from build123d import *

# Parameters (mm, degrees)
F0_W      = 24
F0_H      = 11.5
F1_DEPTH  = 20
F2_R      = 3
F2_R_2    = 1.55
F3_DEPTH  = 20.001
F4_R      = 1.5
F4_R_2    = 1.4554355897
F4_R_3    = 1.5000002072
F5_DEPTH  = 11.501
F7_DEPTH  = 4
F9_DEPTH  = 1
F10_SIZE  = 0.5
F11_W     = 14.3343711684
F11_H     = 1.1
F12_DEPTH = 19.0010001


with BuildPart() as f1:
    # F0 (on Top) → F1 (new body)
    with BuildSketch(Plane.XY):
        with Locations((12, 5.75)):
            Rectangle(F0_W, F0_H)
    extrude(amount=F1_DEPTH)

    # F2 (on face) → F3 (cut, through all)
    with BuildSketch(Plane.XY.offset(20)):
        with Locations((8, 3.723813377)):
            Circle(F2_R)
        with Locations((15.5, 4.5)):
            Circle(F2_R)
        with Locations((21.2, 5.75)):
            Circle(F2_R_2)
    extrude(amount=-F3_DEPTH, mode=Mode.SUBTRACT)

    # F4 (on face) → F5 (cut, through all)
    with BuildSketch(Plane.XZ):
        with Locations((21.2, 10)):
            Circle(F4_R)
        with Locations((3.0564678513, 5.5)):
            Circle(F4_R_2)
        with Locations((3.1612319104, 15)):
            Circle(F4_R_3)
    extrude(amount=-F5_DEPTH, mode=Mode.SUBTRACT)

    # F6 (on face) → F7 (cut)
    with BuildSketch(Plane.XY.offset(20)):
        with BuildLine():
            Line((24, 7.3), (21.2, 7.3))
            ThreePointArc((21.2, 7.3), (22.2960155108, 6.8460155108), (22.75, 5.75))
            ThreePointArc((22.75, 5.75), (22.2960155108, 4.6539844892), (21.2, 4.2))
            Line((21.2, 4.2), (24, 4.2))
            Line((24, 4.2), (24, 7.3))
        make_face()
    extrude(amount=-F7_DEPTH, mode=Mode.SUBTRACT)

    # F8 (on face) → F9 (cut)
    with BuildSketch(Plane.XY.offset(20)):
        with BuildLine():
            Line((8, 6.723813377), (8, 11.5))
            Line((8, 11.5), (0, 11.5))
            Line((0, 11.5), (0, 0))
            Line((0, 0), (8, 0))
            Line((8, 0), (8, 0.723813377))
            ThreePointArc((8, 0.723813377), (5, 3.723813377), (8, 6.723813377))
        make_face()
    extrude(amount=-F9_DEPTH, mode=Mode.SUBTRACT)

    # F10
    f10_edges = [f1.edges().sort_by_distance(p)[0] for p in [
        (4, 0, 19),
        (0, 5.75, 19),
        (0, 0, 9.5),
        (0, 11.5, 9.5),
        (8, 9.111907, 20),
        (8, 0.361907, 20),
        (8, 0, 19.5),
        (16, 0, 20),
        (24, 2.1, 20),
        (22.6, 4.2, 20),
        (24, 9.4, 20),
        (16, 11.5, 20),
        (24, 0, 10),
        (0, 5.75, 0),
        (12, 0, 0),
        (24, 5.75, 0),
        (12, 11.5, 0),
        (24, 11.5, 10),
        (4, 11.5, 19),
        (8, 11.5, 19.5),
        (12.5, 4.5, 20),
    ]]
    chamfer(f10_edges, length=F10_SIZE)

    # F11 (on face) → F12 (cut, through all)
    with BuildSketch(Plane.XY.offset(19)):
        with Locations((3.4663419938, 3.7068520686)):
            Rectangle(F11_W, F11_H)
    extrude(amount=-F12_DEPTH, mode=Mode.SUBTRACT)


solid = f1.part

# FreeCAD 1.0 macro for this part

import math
import FreeCAD as App
import Part
import Sketcher

V = App.Vector
Q = App.Units.Quantity


def edges_at(feature, points):
    """Names of the edges that pass closest to the given points."""
    edges = feature.Shape.Edges
    near = lambda p: min(range(len(edges)), key=lambda i: edges[i].distToShape(Part.Vertex(*p))[0])
    return sorted({f"Edge{near(p) + 1}" for p in points})

doc = App.newDocument("Part")
body = doc.addObject("PartDesign::Body", "Body")

# Sketch on XY plane
sketch1 = doc.addObject("Sketcher::SketchObject", "Sketch")
body.addObject(sketch1)
sketch1.AttachmentSupport = (doc.XY_Plane, [""])
sketch1.MapMode = "FlatFace"
sketch1.addGeometry([
    Part.LineSegment(V(0, 12, 0), V(0, 0, 0)),
    Part.LineSegment(V(0, 0, 0), V(24, 0, 0)),
    Part.LineSegment(V(24, 0, 0), V(24, 12, 0)),
    Part.LineSegment(V(24, 12, 0), V(0, 12, 0)),
], False)
sketch1.addConstraint([
    Sketcher.Constraint("Coincident", 0, 2, 1, 1),
    Sketcher.Constraint("Coincident", 1, 2, 2, 1),
    Sketcher.Constraint("Coincident", 2, 2, 3, 1),
    Sketcher.Constraint("Coincident", 3, 2, 0, 1),
    Sketcher.Constraint("Vertical", 0),
    Sketcher.Constraint("Horizontal", 1),
    Sketcher.Constraint("Vertical", 2),
    Sketcher.Constraint("Horizontal", 3),
    Sketcher.Constraint("Coincident", 0, 2, -1, 1),
    Sketcher.Constraint("DistanceX", 1, 1, 1, 2, Q("24 mm")),
    Sketcher.Constraint("DistanceY", 0, 2, 0, 1, Q("11.5 mm")),
])
pad1 = doc.addObject("PartDesign::Pad", "Pad")
body.addObject(pad1)
pad1.Profile = sketch1
pad1.Length = 20

# Sketch on XY plane
sketch2 = doc.addObject("Sketcher::SketchObject", "Sketch001")
body.addObject(sketch2)
sketch2.AttachmentSupport = (doc.XY_Plane, [""])
sketch2.MapMode = "FlatFace"
sketch2.AttachmentOffset = App.Placement(V(0, 0, 20), App.Rotation())
sketch2.addGeometry([
    Part.Circle(V(8, 3.7, 0), V(0, 0, 1), 3),
    Part.Circle(V(15.5, 4.5, 0), V(0, 0, 1), 3),
    Part.Circle(V(21.2, 5.8, 0), V(0, 0, 1), 1.6),
], False)
sketch2.addConstraint([
    Sketcher.Constraint("Equal", 0, 1),
    Sketcher.Constraint("Diameter", 0, Q("6 mm")),
    Sketcher.Constraint("Diameter", 2, Q("3.1 mm")),
    Sketcher.Constraint("DistanceX", -1, 1, 0, 3, Q("8 mm")),
    Sketcher.Constraint("DistanceX", -1, 1, 1, 3, Q("15.5 mm")),
    Sketcher.Constraint("DistanceY", -1, 1, 1, 3, Q("4.5 mm")),
    Sketcher.Constraint("DistanceX", -1, 1, 2, 3, Q("21.2 mm")),
    Sketcher.Constraint("DistanceY", -1, 1, 2, 3, Q("5.75 mm")),
    Sketcher.Constraint("DistanceY", -1, 1, 0, 3, Q("3.723813 mm")),
])
pocket1 = doc.addObject("PartDesign::Pocket", "Pocket")
body.addObject(pocket1)
pocket1.Profile = sketch2
pocket1.Type = "ThroughAll"

# Sketch on XZ plane
sketch3 = doc.addObject("Sketcher::SketchObject", "Sketch002")
body.addObject(sketch3)
sketch3.AttachmentSupport = (doc.XZ_Plane, [""])
sketch3.MapMode = "FlatFace"
sketch3.addGeometry([
    Part.Circle(V(21.2, 10, 0), V(0, 0, 1), 1.5),
    Part.Circle(V(3.1, 5.5, 0), V(0, 0, 1), 1.5),
    Part.Circle(V(3.2, 15, 0), V(0, 0, 1), 1.5),
], False)
sketch3.addConstraint([
    Sketcher.Constraint("Equal", 0, 2),
    Sketcher.Constraint("Diameter", 0, Q("3 mm")),
    Sketcher.Constraint("DistanceY", -1, 1, 0, 3, Q("10 mm")),
    Sketcher.Constraint("DistanceY", -1, 1, 2, 3, Q("15 mm")),
    Sketcher.Constraint("DistanceX", -1, 1, 0, 3, Q("21.2 mm")),
    Sketcher.Constraint("DistanceY", -1, 1, 1, 3, Q("5.5 mm")),
    Sketcher.Constraint("Diameter", 1, Q("2.910871 mm")),
    Sketcher.Constraint("DistanceX", -1, 1, 2, 3, Q("3.161232 mm")),
    Sketcher.Constraint("DistanceX", -1, 1, 1, 3, Q("3.056468 mm")),
])
pocket2 = doc.addObject("PartDesign::Pocket", "Pocket001")
body.addObject(pocket2)
pocket2.Profile = sketch3
pocket2.Type = "ThroughAll"

# Sketch on XY plane
sketch4 = doc.addObject("Sketcher::SketchObject", "Sketch003")
body.addObject(sketch4)
sketch4.AttachmentSupport = (doc.XY_Plane, [""])
sketch4.MapMode = "FlatFace"
sketch4.AttachmentOffset = App.Placement(V(0, 0, 20), App.Rotation())
sketch4.addGeometry([
    Part.LineSegment(V(24, 7.3, 0), V(21.2, 7.3, 0)),  # 0
    Part.ArcOfCircle(Part.Circle(V(21.2, 5.8, 0), V(0, 0, 1), 1.6), math.radians(0), math.radians(90)),  # 1
    Part.ArcOfCircle(Part.Circle(V(21.2, 5.8, 0), V(0, 0, 1), 1.6), math.radians(-90), math.radians(0)),  # 2
    Part.LineSegment(V(21.2, 4.2, 0), V(24, 4.2, 0)),  # 3
    Part.LineSegment(V(24, 4.2, 0), V(24, 7.3, 0)),  # 4
], False)
sketch4.addConstraint([
    Sketcher.Constraint("Tangent", 0, 2, 1, 2),
    Sketcher.Constraint("Tangent", 1, 1, 2, 2),
    Sketcher.Constraint("Tangent", 2, 1, 3, 1),
    Sketcher.Constraint("Coincident", 3, 2, 4, 1),
    Sketcher.Constraint("Coincident", 4, 2, 0, 1),
    Sketcher.Constraint("Horizontal", 0),
    Sketcher.Constraint("Horizontal", 3),
    Sketcher.Constraint("Vertical", 4),
    Sketcher.Constraint("Equal", 1, 2),
    Sketcher.Constraint("Horizontal", 2, 3, 1, 1),
    Sketcher.Constraint("Radius", 1, Q("1.55 mm")),
    Sketcher.Constraint("DistanceX", 0, 2, 0, 1, Q("2.8 mm")),
    Sketcher.Constraint("DistanceX", -1, 1, 3, 2, Q("24 mm")),
    Sketcher.Constraint("DistanceY", -1, 1, 0, 2, Q("7.3 mm")),
])
pocket3 = doc.addObject("PartDesign::Pocket", "Pocket002")
body.addObject(pocket3)
pocket3.Profile = sketch4
pocket3.Length = 4

# Sketch on XY plane
sketch5 = doc.addObject("Sketcher::SketchObject", "Sketch004")
body.addObject(sketch5)
sketch5.AttachmentSupport = (doc.XY_Plane, [""])
sketch5.MapMode = "FlatFace"
sketch5.AttachmentOffset = App.Placement(V(0, 0, 20), App.Rotation())
sketch5.addGeometry([
    Part.LineSegment(V(8, 6.7, 0), V(8, 11.5, 0)),  # 0
    Part.LineSegment(V(8, 11.5, 0), V(0, 11.5, 0)),  # 1
    Part.LineSegment(V(0, 11.5, 0), V(0, 0, 0)),  # 2
    Part.LineSegment(V(0, 0, 0), V(8, 0, 0)),  # 3
    Part.LineSegment(V(8, 0, 0), V(8, 0.7, 0)),  # 4
    Part.ArcOfCircle(Part.Circle(V(8, 3.7, 0), V(0, 0, 1), 3), math.radians(90), math.radians(270)),  # 5
], False)
sketch5.addConstraint([
    Sketcher.Constraint("Coincident", 0, 2, 1, 1),
    Sketcher.Constraint("Coincident", 1, 2, 2, 1),
    Sketcher.Constraint("Coincident", 2, 2, 3, 1),
    Sketcher.Constraint("Coincident", 3, 2, 4, 1),
    Sketcher.Constraint("Coincident", 4, 2, 5, 2),
    Sketcher.Constraint("Coincident", 5, 1, 0, 1),
    Sketcher.Constraint("Vertical", 0),
    Sketcher.Constraint("Horizontal", 1),
    Sketcher.Constraint("Vertical", 2),
    Sketcher.Constraint("Horizontal", 3),
    Sketcher.Constraint("Vertical", 4),
    Sketcher.Constraint("Coincident", 2, 2, -1, 1),
    Sketcher.Constraint("Vertical", 5, 3, 0, 2),
    Sketcher.Constraint("Vertical", 0, 2, 3, 2),
    Sketcher.Constraint("Radius", 5, Q("3 mm")),
    Sketcher.Constraint("DistanceX", 1, 2, 1, 1, Q("8 mm")),
    Sketcher.Constraint("DistanceY", 2, 2, 2, 1, Q("11.5 mm")),
    Sketcher.Constraint("DistanceY", 0, 1, 0, 2, Q("4.776187 mm")),
])
pocket4 = doc.addObject("PartDesign::Pocket", "Pocket003")
body.addObject(pocket4)
pocket4.Profile = sketch5
pocket4.Length = 1
doc.recompute()

chamfer = doc.addObject("PartDesign::Chamfer", "Chamfer")
body.addObject(chamfer)
chamfer.Base = (pocket4, edges_at(pocket4, [
    (4, 0, 19),
    (0, 5.75, 19),
    (0, 0, 9.5),
    (0, 11.5, 9.5),
    (8, 9.112, 20),
    (8, 0.362, 20),
    (8, 0, 19.5),
    (16, 0, 20),
    (24, 2.1, 20),
    (22.6, 4.2, 20),
    (24, 9.4, 20),
    (16, 11.5, 20),
    (24, 0, 10),
    (0, 5.75, 0),
    (12, 0, 0),
    (24, 5.75, 0),
    (12, 11.5, 0),
    (24, 11.5, 10),
    (4, 11.5, 19),
    (8, 11.5, 19.5),
    (12.5, 4.5, 20),
]))
chamfer.Size = 0.5

# Sketch on XY plane
sketch6 = doc.addObject("Sketcher::SketchObject", "Sketch005")
body.addObject(sketch6)
sketch6.AttachmentSupport = (doc.XY_Plane, [""])
sketch6.MapMode = "FlatFace"
sketch6.AttachmentOffset = App.Placement(V(0, 0, 19), App.Rotation())
sketch6.addGeometry([
    Part.LineSegment(V(-3.7, 4.3, 0), V(-3.7, 3.2, 0)),
    Part.LineSegment(V(-3.7, 3.2, 0), V(10.6, 3.2, 0)),
    Part.LineSegment(V(10.6, 3.2, 0), V(10.6, 4.3, 0)),
    Part.LineSegment(V(10.6, 4.3, 0), V(-3.7, 4.3, 0)),
], False)
sketch6.addConstraint([
    Sketcher.Constraint("Coincident", 0, 2, 1, 1),
    Sketcher.Constraint("Coincident", 1, 2, 2, 1),
    Sketcher.Constraint("Coincident", 2, 2, 3, 1),
    Sketcher.Constraint("Coincident", 3, 2, 0, 1),
    Sketcher.Constraint("Vertical", 0),
    Sketcher.Constraint("Horizontal", 1),
    Sketcher.Constraint("Vertical", 2),
    Sketcher.Constraint("Horizontal", 3),
    Sketcher.Constraint("DistanceY", 0, 2, 0, 1, Q("1.1 mm")),
    Sketcher.Constraint("DistanceX", 1, 1, 1, 2, Q("14.334371 mm")),
    Sketcher.Constraint("DistanceX", 0, 2, -1, 1, Q("3.700844 mm")),
    Sketcher.Constraint("DistanceY", -1, 1, 0, 2, Q("3.156852 mm")),
])
pocket5 = doc.addObject("PartDesign::Pocket", "Pocket004")
body.addObject(pocket5)
pocket5.Profile = sketch6
pocket5.Type = "ThroughAll"

doc.recompute()
